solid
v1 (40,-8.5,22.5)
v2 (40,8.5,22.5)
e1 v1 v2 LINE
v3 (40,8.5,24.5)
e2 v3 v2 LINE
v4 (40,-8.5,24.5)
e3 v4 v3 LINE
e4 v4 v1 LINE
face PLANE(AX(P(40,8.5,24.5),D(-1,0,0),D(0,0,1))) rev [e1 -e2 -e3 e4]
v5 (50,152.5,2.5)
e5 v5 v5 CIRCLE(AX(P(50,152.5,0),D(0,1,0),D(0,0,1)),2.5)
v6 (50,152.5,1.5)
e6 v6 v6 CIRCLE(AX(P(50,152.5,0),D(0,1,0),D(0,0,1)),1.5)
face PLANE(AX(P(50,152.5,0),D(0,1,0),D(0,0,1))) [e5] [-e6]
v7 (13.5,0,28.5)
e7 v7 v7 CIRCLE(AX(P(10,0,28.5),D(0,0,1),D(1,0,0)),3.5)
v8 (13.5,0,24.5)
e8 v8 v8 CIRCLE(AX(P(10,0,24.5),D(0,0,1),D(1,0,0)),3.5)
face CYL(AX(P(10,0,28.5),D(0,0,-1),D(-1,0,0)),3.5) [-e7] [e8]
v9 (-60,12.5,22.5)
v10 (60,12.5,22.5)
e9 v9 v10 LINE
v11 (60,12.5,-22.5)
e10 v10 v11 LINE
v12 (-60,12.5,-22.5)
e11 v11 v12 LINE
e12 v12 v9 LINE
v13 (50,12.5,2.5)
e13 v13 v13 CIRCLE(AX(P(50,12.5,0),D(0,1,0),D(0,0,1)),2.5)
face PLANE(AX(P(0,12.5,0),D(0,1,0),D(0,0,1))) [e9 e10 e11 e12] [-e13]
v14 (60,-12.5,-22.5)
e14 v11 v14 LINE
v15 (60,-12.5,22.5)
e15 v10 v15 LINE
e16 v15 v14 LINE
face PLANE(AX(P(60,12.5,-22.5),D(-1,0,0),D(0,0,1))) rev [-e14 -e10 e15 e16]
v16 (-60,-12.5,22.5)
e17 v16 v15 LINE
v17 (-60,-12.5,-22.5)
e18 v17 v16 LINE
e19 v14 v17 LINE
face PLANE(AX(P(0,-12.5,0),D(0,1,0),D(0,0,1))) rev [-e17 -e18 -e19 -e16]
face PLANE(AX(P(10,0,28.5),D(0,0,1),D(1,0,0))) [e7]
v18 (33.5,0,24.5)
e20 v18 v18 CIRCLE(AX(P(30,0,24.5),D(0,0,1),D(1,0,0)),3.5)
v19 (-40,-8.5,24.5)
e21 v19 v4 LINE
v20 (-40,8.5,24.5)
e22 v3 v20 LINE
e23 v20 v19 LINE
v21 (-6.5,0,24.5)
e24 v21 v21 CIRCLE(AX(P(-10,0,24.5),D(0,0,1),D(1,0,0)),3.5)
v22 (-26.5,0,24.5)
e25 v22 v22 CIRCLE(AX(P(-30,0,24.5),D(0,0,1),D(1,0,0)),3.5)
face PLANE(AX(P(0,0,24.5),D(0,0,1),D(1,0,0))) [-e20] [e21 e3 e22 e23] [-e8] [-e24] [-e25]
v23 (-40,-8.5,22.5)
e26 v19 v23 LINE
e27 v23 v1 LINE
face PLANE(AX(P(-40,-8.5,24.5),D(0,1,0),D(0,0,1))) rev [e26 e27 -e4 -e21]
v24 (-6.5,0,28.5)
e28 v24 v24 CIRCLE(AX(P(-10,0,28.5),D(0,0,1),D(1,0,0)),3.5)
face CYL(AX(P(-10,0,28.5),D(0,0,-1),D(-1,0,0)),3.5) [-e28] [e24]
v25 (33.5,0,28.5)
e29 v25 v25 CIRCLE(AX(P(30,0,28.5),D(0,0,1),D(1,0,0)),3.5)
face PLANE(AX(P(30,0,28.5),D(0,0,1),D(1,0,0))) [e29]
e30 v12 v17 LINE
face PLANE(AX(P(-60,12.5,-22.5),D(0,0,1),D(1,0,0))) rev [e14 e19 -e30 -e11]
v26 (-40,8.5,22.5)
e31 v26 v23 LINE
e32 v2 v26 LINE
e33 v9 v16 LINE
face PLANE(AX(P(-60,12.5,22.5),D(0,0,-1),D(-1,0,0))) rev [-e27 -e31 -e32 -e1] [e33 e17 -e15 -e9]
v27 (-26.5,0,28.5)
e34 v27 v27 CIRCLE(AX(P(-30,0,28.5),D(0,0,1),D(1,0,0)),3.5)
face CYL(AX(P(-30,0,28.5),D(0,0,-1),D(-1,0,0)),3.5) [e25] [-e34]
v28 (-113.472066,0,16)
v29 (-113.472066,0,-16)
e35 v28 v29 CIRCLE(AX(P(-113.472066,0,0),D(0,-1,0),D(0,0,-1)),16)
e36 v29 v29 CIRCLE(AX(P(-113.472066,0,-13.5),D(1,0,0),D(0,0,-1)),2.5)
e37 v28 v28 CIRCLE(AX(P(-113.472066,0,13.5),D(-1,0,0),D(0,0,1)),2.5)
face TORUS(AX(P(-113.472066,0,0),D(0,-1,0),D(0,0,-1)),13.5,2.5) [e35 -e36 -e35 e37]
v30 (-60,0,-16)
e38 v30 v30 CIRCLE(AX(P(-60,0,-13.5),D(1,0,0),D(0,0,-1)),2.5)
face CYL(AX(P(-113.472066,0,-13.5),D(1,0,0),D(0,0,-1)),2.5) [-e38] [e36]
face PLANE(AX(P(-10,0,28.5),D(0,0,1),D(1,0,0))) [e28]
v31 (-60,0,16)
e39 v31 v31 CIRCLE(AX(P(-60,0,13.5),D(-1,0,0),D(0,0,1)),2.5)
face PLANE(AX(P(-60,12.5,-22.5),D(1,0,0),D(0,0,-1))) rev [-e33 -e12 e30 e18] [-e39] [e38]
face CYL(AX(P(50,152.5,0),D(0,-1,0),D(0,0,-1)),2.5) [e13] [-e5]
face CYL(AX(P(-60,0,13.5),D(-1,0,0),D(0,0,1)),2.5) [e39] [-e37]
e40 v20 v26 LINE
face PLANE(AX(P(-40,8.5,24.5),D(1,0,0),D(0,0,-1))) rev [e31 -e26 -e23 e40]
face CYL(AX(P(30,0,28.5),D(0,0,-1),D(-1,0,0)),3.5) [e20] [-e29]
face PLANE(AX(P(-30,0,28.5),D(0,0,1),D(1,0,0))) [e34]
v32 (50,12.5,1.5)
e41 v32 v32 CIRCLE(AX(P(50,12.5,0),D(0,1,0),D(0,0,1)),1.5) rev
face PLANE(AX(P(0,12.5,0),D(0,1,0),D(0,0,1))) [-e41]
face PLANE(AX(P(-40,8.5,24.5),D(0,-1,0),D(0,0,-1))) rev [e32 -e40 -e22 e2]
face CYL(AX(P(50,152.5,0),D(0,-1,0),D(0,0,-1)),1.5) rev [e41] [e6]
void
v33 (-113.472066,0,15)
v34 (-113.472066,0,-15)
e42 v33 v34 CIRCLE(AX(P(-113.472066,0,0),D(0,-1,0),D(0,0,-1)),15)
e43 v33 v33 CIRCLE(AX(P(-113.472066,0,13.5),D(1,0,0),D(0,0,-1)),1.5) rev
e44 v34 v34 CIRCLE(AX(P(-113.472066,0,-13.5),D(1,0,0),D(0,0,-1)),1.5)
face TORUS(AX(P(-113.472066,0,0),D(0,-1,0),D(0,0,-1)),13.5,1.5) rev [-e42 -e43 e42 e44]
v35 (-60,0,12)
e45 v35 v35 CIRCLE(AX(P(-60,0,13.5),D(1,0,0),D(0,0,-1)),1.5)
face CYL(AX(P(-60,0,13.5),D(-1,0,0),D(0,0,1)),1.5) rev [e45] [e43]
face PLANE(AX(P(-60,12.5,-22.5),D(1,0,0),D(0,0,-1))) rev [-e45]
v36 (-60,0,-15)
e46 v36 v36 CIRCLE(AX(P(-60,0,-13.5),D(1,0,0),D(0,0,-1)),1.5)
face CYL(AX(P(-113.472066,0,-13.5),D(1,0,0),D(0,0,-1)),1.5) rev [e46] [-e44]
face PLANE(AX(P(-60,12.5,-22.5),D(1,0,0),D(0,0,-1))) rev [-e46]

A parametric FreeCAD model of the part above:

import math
import FreeCAD as App
import Part
import Sketcher
Q = App.Units.Quantity


def add_polygon(sketch, points):
    """Adds a closed chain of lines whose ends are joined by coincident constraints."""
    first, n = sketch.GeometryCount, len(points)
    for a, b in zip(points, points[1:] + points[:1]):
        sketch.addGeometry(Part.LineSegment(App.Vector(*a, 0), App.Vector(*b, 0)), False)
    for i in range(n):
        sketch.addConstraint(Sketcher.Constraint("Coincident", first + i, 2, first + (i + 1) % n, 1))

doc = App.newDocument("Part")
body = doc.addObject("PartDesign::Body", "Body")

# Sketch on XZ plane
sketch1 = body.newObject("Sketcher::SketchObject", "Sketch")
sketch1.AttachmentSupport = (doc.getObject("XZ_Plane"), [""])
sketch1.MapMode = "FlatFace"
add_polygon(sketch1, [(-60, -22.5), (-60, 22.5), (60, 22.5), (60, -22.5)])  # lines 0-3
sketch1.addConstraint([
    Sketcher.Constraint("Vertical", 0),
    Sketcher.Constraint("Horizontal", 1),
    Sketcher.Constraint("Vertical", 2),
    Sketcher.Constraint("Horizontal", 3),
    Sketcher.Constraint("Symmetric", 0, 2, 2, 2, -1, 1),
    Sketcher.Constraint("DistanceX", 1, 1, 1, 2, Q("120 mm")),
    Sketcher.Constraint("DistanceY", 0, 1, 0, 2, Q("45 mm")),
])
pad1 = body.newObject("PartDesign::Pad", "Pad")
pad1.Profile = sketch1
pad1.Length = 25
pad1.Midplane = True

# Sketch on XZ plane
sketch2 = body.newObject("Sketcher::SketchObject", "Sketch001")
sketch2.AttachmentSupport = (doc.getObject("XZ_Plane"), [""])
sketch2.MapMode = "FlatFace"
sketch2.AttachmentOffset = App.Placement(App.Vector(0, 0, -12.5), App.Rotation())
sketch2.addGeometry([
    Part.Circle(App.Vector(50, 0, 0), App.Vector(0, 0, 1), 2.5),
    Part.Circle(App.Vector(50, 0, 0), App.Vector(0, 0, 1), 1.5),
], False)
sketch2.addConstraint([
    Sketcher.Constraint("Coincident", 1, 3, 0, 3),
    Sketcher.Constraint("PointOnObject", 0, 3, -1),
    Sketcher.Constraint("Diameter", 0, Q("5 mm")),
    Sketcher.Constraint("Diameter", 1, Q("3 mm")),
    Sketcher.Constraint("DistanceX", -1, 1, 0, 3, Q("50 mm")),
])
pad2 = body.newObject("PartDesign::Pad", "Pad001")
pad2.Profile = sketch2
pad2.Length = 140
pad2.Reversed = True

# Sketch on YZ plane
sketch3 = body.newObject("Sketcher::SketchObject", "Sketch002")
sketch3.AttachmentSupport = (doc.getObject("YZ_Plane"), [""])
sketch3.MapMode = "FlatFace"
sketch3.AttachmentOffset = App.Placement(App.Vector(0, 0, -60), App.Rotation())
sketch3.addGeometry([
    Part.Circle(App.Vector(0, -13.5, 0), App.Vector(0, 0, 1), 2.5),
    Part.Circle(App.Vector(0, -13.5, 0), App.Vector(0, 0, 1), 1.5),
], False)
sketch3.addConstraint([
    Sketcher.Constraint("Coincident", 1, 3, 0, 3),
    Sketcher.Constraint("PointOnObject", 0, 3, -2),
    Sketcher.Constraint("Diameter", 0, Q("5 mm")),
    Sketcher.Constraint("Diameter", 1, Q("3 mm")),
    Sketcher.Constraint("DistanceY", 0, 3, -1, 1, Q("13.5 mm")),
])

# Sketch on XZ plane
sketch4 = body.newObject("Sketcher::SketchObject", "Sketch003")
sketch4.AttachmentSupport = (doc.getObject("XZ_Plane"), [""])
sketch4.MapMode = "FlatFace"
sketch4.addGeometry([
    Part.LineSegment(App.Vector(-60, -13.5, 0), App.Vector(-113.472066, -13.5, 0)),
    Part.ArcOfCircle(Part.Circle(App.Vector(-113.472066, 0, 0), App.Vector(0, 0, 1), 13.5), math.radians(90), math.radians(270)),
    Part.LineSegment(App.Vector(-113.472066, 13.5, 0), App.Vector(-60, 13.5, 0)),
], False)
sketch4.addConstraint([
    Sketcher.Constraint("Tangent", 0, 2, 1, 2),
    Sketcher.Constraint("Tangent", 1, 1, 2, 1),
    Sketcher.Constraint("Horizontal", 0),
    Sketcher.Constraint("Horizontal", 2),
    Sketcher.Constraint("Symmetric", 0, 1, 2, 2, -1),
    Sketcher.Constraint("Radius", 1, Q("13.5 mm")),
    Sketcher.Constraint("DistanceX", 0, 1, -1, 1, Q("60 mm")),
    Sketcher.Constraint("DistanceX", 0, 2, 0, 1, Q("53.472066 mm")),
])
doc.recompute()

additivepipe = body.newObject("PartDesign::AdditivePipe", "AdditivePipe")
additivepipe.Profile = sketch3
additivepipe.Spine = (sketch4, ["Edge1", "Edge2", "Edge3"])

# Sketch on XY plane
sketch5 = body.newObject("Sketcher::SketchObject", "Sketch004")
sketch5.AttachmentSupport = (doc.getObject("XY_Plane"), [""])
sketch5.MapMode = "FlatFace"
sketch5.AttachmentOffset = App.Placement(App.Vector(0, 0, 22.5), App.Rotation())
add_polygon(sketch5, [(-40, 8.5), (-40, -8.5), (40, -8.5), (40, 8.5)])  # lines 0-3
sketch5.addConstraint([
    Sketcher.Constraint("Vertical", 0),
    Sketcher.Constraint("Horizontal", 1),
    Sketcher.Constraint("Vertical", 2),
    Sketcher.Constraint("Horizontal", 3),
    Sketcher.Constraint("Symmetric", 0, 2, 2, 2, -1, 1),
    Sketcher.Constraint("DistanceX", 1, 1, 1, 2, Q("80 mm")),
    Sketcher.Constraint("DistanceY", 0, 2, 0, 1, Q("17 mm")),
])
pad3 = body.newObject("PartDesign::Pad", "Pad002")
pad3.Profile = sketch5
pad3.Length = 2

# Sketch on XY plane
sketch6 = body.newObject("Sketcher::SketchObject", "Sketch005")
sketch6.AttachmentSupport = (doc.getObject("XY_Plane"), [""])
sketch6.MapMode = "FlatFace"
sketch6.AttachmentOffset = App.Placement(App.Vector(0, 0, 24.5), App.Rotation())
sketch6.addGeometry(Part.Circle(App.Vector(-10, 0, 0), App.Vector(0, 0, 1), 3.5), False)
sketch6.addConstraint([
    Sketcher.Constraint("PointOnObject", 0, 3, -1),
    Sketcher.Constraint("Diameter", 0, Q("7 mm")),
    Sketcher.Constraint("DistanceX", 0, 3, -1, 1, Q("10 mm")),
])
pad4 = body.newObject("PartDesign::Pad", "Pad003")
pad4.Profile = sketch6
pad4.Length = 4
doc.recompute()

linearpattern = body.newObject("PartDesign::LinearPattern", "LinearPattern")
linearpattern.Originals = [pad4]
linearpattern.Direction = (doc.getObject("X_Axis"), [""])
linearpattern.Mode = "offset"
linearpattern.Offset = 20
linearpattern.Occurrences = 2
linearpattern.Reversed = True
body.Tip = linearpattern
doc.recompute()

linearpattern2 = body.newObject("PartDesign::LinearPattern", "LinearPattern001")
linearpattern2.Originals = [pad4]
linearpattern2.Direction = (doc.getObject("X_Axis"), [""])
linearpattern2.Mode = "offset"
linearpattern2.Offset = 20
linearpattern2.Occurrences = 3
body.Tip = linearpattern2

doc.recompute()
